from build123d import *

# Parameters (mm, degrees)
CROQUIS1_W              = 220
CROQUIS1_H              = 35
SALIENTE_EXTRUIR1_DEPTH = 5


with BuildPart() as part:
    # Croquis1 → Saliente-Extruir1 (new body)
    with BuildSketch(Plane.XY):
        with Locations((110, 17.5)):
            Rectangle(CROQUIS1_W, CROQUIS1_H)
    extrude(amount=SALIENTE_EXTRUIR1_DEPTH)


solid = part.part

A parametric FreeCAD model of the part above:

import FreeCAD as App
import Part
import Sketcher
from FreeCAD import Vector


def add_polygon(sketch, points):
    """Adds a closed chain of lines whose ends are joined by coincident constraints."""
    first, n = sketch.GeometryCount, len(points)
    for a, b in zip(points, points[1:] + points[:1]):
        sketch.addGeometry(Part.LineSegment(App.Vector(*a, 0), App.Vector(*b, 0)), False)
    for i in range(n):
        sketch.addConstraint(Sketcher.Constraint("Coincident", first + i, 2, first + (i + 1) % n, 1))

doc = App.newDocument("Part")
body = doc.addObject("PartDesign::Body", "Body")

# Sketch on XY plane
sketch1 = body.newObject("Sketcher::SketchObject", "Sketch")
sketch1.AttachmentSupport = (doc.getObject("XY_Plane"), [""])
sketch1.MapMode = "FlatFace"
add_polygon(sketch1, [(0, 35), (0, 0), (220, 0), (220, 35)])  # lines 0-3
sketch1.addConstraint([
    Sketcher.Constraint("Vertical", 0),
    Sketcher.Constraint("Horizontal", 1),
    Sketcher.Constraint("Vertical", 2),
    Sketcher.Constraint("Horizontal", 3),
    Sketcher.Constraint("Coincident", 0, 2, -1, 1),
    Sketcher.Constraint("DistanceX", 1, 1, 1, 2, 220.0),
    Sketcher.Constraint("DistanceY", 0, 2, 0, 1, 35.0),
])
pad1 = body.newObject("PartDesign::Pad", "Pad")
pad1.Profile = sketch1
pad1.Length = 5

doc.recompute()
